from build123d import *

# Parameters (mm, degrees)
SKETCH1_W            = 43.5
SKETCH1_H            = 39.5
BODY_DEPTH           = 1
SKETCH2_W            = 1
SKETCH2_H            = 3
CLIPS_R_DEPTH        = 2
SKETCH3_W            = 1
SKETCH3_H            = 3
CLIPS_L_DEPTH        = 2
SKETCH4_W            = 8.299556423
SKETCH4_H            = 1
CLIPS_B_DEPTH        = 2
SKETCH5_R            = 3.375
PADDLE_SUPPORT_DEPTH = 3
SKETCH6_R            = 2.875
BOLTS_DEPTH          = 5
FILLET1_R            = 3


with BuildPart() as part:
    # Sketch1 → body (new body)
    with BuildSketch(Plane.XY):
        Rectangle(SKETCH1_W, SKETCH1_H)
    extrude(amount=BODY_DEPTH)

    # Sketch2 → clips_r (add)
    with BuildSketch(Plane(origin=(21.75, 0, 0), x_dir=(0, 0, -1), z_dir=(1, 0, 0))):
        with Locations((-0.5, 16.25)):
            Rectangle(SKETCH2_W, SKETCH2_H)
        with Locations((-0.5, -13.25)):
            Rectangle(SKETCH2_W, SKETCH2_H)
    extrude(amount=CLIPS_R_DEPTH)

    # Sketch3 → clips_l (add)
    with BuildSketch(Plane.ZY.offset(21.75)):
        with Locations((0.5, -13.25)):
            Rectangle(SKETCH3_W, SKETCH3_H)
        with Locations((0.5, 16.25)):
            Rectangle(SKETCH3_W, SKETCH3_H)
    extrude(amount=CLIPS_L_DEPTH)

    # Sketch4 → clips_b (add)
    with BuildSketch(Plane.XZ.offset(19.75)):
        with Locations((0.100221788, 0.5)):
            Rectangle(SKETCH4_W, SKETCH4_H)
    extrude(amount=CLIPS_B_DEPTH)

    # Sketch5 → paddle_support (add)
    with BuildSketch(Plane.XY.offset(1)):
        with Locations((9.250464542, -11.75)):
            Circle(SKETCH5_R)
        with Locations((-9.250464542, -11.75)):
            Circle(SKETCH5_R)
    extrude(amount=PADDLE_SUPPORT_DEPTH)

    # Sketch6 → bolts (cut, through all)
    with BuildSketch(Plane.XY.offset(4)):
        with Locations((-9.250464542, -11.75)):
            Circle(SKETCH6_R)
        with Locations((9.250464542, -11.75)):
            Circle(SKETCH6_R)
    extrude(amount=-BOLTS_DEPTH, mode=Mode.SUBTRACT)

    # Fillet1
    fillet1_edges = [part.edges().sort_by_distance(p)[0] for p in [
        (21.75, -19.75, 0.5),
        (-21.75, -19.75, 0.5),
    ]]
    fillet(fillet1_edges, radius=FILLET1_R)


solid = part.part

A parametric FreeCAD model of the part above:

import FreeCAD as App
import Part
import Sketcher
from FreeCAD import Vector
Q = App.Units.Quantity


def edges_at(feature, points):
    """Names of the edges that pass closest to the given points."""
    edges = feature.Shape.Edges
    near = lambda p: min(range(len(edges)), key=lambda i: edges[i].distToShape(Part.Vertex(*p))[0])
    return sorted({f"Edge{near(p) + 1}" for p in points})


def add_polygon(sketch, points):
    """Adds a closed chain of lines whose ends are joined by coincident constraints."""
    first, n = sketch.GeometryCount, len(points)
    for a, b in zip(points, points[1:] + points[:1]):
        sketch.addGeometry(Part.LineSegment(App.Vector(*a, 0), App.Vector(*b, 0)), False)
    for i in range(n):
        sketch.addConstraint(Sketcher.Constraint("Coincident", first + i, 2, first + (i + 1) % n, 1))

doc = App.newDocument("Part")
body = doc.addObject("PartDesign::Body", "Body")

sketch1 = body.newObject("Sketcher::SketchObject", "Sketch")
sketch1.AttachmentSupport = (doc.getObject("XY_Plane"), [""])
sketch1.MapMode = "FlatFace"
add_polygon(sketch1, [(-22, 20), (-22, -20), (22, -20), (22, 20)])
sketch1.addConstraint([
    Sketcher.Constraint("Vertical", 0),
    Sketcher.Constraint("Horizontal", 1),
    Sketcher.Constraint("Vertical", 2),
    Sketcher.Constraint("Horizontal", 3),
    Sketcher.Constraint("Symmetric", 0, 2, 2, 2, -1, 1),
    Sketcher.Constraint("DistanceX", 1, 1, 1, 2, Q("43.5 mm")),
    Sketcher.Constraint("DistanceY", 0, 2, 0, 1, Q("39.5 mm")),
])
pad1 = body.newObject("PartDesign::Pad", "Pad")
pad1.Profile = sketch1
pad1.Length = 1

sketch2 = body.newObject("Sketcher::SketchObject", "Sketch001")
sketch2.AttachmentSupport = (doc.getObject("YZ_Plane"), [""])
sketch2.MapMode = "FlatFace"
sketch2.AttachmentOffset = App.Placement(Vector(0, 0, 21.75), App.Rotation())
add_polygon(sketch2, [(17.8, 1), (14.8, 1), (14.8, 0), (17.8, 0)])
add_polygon(sketch2, [(-11.8, 1), (-14.8, 1), (-14.8, 0), (-11.8, 0)])
sketch2.addConstraint([
    Sketcher.Constraint("Horizontal", 0),
    Sketcher.Constraint("Vertical", 1),
    Sketcher.Constraint("Horizontal", 2),
    Sketcher.Constraint("Vertical", 3),
    Sketcher.Constraint("Horizontal", 4),
    Sketcher.Constraint("Vertical", 5),
    Sketcher.Constraint("Horizontal", 6),
    Sketcher.Constraint("Vertical", 7),
    Sketcher.Constraint("Symmetric", 1, 2, 5, 2, -1, 1),
    Sketcher.Constraint("PointOnObject", 1, 2, -1),
    Sketcher.Constraint("Horizontal", 3, 2, 4, 2),
    Sketcher.Constraint("Equal", 2, 4),
    Sketcher.Constraint("DistanceX", 0, 2, 0, 1, Q("3 mm")),
    Sketcher.Constraint("DistanceY", 1, 2, 1, 1, Q("1 mm")),
    Sketcher.Constraint("DistanceX", 4, 2, 0, 2, Q("29.5 mm")),
])
pad2 = body.newObject("PartDesign::Pad", "Pad001")
pad2.Profile = sketch2
pad2.Length = 2

sketch3 = body.newObject("Sketcher::SketchObject", "Sketch002")
sketch3.AttachmentSupport = (doc.getObject("YZ_Plane"), [""])
sketch3.MapMode = "FlatFace"
sketch3.AttachmentOffset = App.Placement(Vector(0, 0, -21.75), App.Rotation())
add_polygon(sketch3, [(-11.8, 0), (-14.8, 0), (-14.8, 1), (-11.8, 1)])
add_polygon(sketch3, [(17.8, 0), (14.8, 0), (14.8, 1), (17.8, 1)])
sketch3.addConstraint([
    Sketcher.Constraint("Horizontal", 0),
    Sketcher.Constraint("Vertical", 1),
    Sketcher.Constraint("Horizontal", 2),
    Sketcher.Constraint("Vertical", 3),
    Sketcher.Constraint("Horizontal", 4),
    Sketcher.Constraint("Vertical", 5),
    Sketcher.Constraint("Horizontal", 6),
    Sketcher.Constraint("Vertical", 7),
    Sketcher.Constraint("Symmetric", 0, 2, 4, 2, -1, 1),
    Sketcher.Constraint("PointOnObject", 0, 2, -1),
    Sketcher.Constraint("Horizontal", 2, 2, 5, 2),
    Sketcher.Constraint("Equal", 2, 4),
    Sketcher.Constraint("DistanceX", 0, 2, 0, 1, Q("3 mm")),
    Sketcher.Constraint("DistanceY", 1, 1, 1, 2, Q("1 mm")),
    Sketcher.Constraint("DistanceX", 3, 2, 4, 2, Q("26.5 mm")),
])
pad3 = body.newObject("PartDesign::Pad", "Pad002")
pad3.Profile = sketch3
pad3.Length = 2
pad3.Reversed = True

sketch4 = body.newObject("Sketcher::SketchObject", "Sketch003")
sketch4.AttachmentSupport = (doc.getObject("XZ_Plane"), [""])
sketch4.MapMode = "FlatFace"
sketch4.AttachmentOffset = App.Placement(Vector(0, 0, 19.75), App.Rotation())
add_polygon(sketch4, [(-4, 1), (-4, 0), (4.2, 0), (4.2, 1)])
sketch4.addConstraint([
    Sketcher.Constraint("Vertical", 0),
    Sketcher.Constraint("Horizontal", 1),
    Sketcher.Constraint("Vertical", 2),
    Sketcher.Constraint("Horizontal", 3),
    Sketcher.Constraint("PointOnObject", 0, 2, -1),
    Sketcher.Constraint("DistanceY", 0, 2, 0, 1, Q("1 mm")),
    Sketcher.Constraint("DistanceX", -1, 1, 1, 2, Q("4.25 mm")),
    Sketcher.Constraint("DistanceX", 1, 1, 1, 2, Q("8.299556 mm")),
])
pad4 = body.newObject("PartDesign::Pad", "Pad003")
pad4.Profile = sketch4
pad4.Length = 2

sketch5 = body.newObject("Sketcher::SketchObject", "Sketch004")
sketch5.AttachmentSupport = (doc.getObject("XY_Plane"), [""])
sketch5.MapMode = "FlatFace"
sketch5.AttachmentOffset = App.Placement(Vector(0, 0, 1), App.Rotation())
sketch5.addGeometry([
    Part.Circle(Vector(9.3, -11.8, 0), Vector(0, 0, 1), 3.4),
    Part.Circle(Vector(-9.3, -11.8, 0), Vector(0, 0, 1), 3.4),
], False)
sketch5.addConstraint([
    Sketcher.Constraint("Equal", 0, 1),
    Sketcher.Constraint("Symmetric", 0, 3, 1, 3, -2),
    Sketcher.Constraint("Diameter", 0, Q("6.75 mm")),
    Sketcher.Constraint("DistanceY", 0, 3, -1, 1, Q("11.75 mm")),
    Sketcher.Constraint("DistanceX", 1, 3, 0, 3, Q("18.500929 mm")),
])
pad5 = body.newObject("PartDesign::Pad", "Pad004")
pad5.Profile = sketch5
pad5.Length = 3

sketch6 = body.newObject("Sketcher::SketchObject", "Sketch005")
sketch6.AttachmentSupport = (doc.getObject("XY_Plane"), [""])
sketch6.MapMode = "FlatFace"
sketch6.AttachmentOffset = App.Placement(Vector(0, 0, 4), App.Rotation())
sketch6.addGeometry([
    Part.Circle(Vector(-9.3, -11.8, 0), Vector(0, 0, 1), 2.9),
    Part.Circle(Vector(9.3, -11.8, 0), Vector(0, 0, 1), 2.9),
], False)
sketch6.addConstraint([
    Sketcher.Constraint("Equal", 0, 1),
    Sketcher.Constraint("Symmetric", 0, 3, 1, 3, -2),
    Sketcher.Constraint("Diameter", 0, Q("5.75 mm")),
    Sketcher.Constraint("DistanceY", 0, 3, -1, 1, Q("11.75 mm")),
    Sketcher.Constraint("DistanceX", 0, 3, 1, 3, Q("18.500929 mm")),
])
pocket1 = body.newObject("PartDesign::Pocket", "Pocket")
pocket1.Profile = sketch6
pocket1.Type = "ThroughAll"
doc.recompute()

fillet = body.newObject("PartDesign::Fillet", "Fillet")
fillet.Base = (pocket1, edges_at(pocket1, [(21.75, -19.75, 0.5), (-21.75, -19.75, 0.5)]))
fillet.Radius = 3

doc.recompute()
